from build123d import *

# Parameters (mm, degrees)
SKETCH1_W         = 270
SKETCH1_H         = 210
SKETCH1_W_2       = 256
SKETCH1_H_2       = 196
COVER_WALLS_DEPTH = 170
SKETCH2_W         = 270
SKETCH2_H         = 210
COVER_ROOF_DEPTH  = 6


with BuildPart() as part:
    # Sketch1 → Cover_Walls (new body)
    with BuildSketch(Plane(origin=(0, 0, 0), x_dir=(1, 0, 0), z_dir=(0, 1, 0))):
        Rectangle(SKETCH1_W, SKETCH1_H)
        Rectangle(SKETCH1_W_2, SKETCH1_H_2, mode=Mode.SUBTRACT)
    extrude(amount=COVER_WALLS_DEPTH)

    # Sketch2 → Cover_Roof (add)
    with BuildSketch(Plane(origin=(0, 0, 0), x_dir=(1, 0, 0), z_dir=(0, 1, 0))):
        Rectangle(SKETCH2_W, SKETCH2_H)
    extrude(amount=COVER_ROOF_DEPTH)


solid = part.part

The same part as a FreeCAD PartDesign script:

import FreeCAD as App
import Part
import Sketcher
Q = App.Units.Quantity

doc = App.newDocument("Part")
body = doc.addObject("PartDesign::Body", "Body")

# Sketch on XZ plane
sketch1 = doc.addObject("Sketcher::SketchObject", "Sketch")
body.addObject(sketch1)
sketch1.AttachmentSupport = (doc.XZ_Plane, [""])
sketch1.MapMode = "FlatFace"
sketch1.addGeometry([
    Part.LineSegment(App.Vector(-135, -105, 0), App.Vector(-135, 105, 0)),  # 0
    Part.LineSegment(App.Vector(-135, 105, 0), App.Vector(135, 105, 0)),  # 1
    Part.LineSegment(App.Vector(135, 105, 0), App.Vector(135, -105, 0)),  # 2
    Part.LineSegment(App.Vector(135, -105, 0), App.Vector(-135, -105, 0)),  # 3
    Part.LineSegment(App.Vector(128, 98, 0), App.Vector(-128, 98, 0)),  # 4
    Part.LineSegment(App.Vector(-128, 98, 0), App.Vector(-128, -98, 0)),  # 5
    Part.LineSegment(App.Vector(-128, -98, 0), App.Vector(128, -98, 0)),  # 6
    Part.LineSegment(App.Vector(128, -98, 0), App.Vector(128, 98, 0)),  # 7
], False)
sketch1.addConstraint([
    Sketcher.Constraint("Coincident", 0, 2, 1, 1),
    Sketcher.Constraint("Coincident", 1, 2, 2, 1),
    Sketcher.Constraint("Coincident", 2, 2, 3, 1),
    Sketcher.Constraint("Coincident", 3, 2, 0, 1),
    Sketcher.Constraint("Coincident", 4, 2, 5, 1),
    Sketcher.Constraint("Coincident", 5, 2, 6, 1),
    Sketcher.Constraint("Coincident", 6, 2, 7, 1),
    Sketcher.Constraint("Coincident", 7, 2, 4, 1),
    Sketcher.Constraint("Vertical", 0),
    Sketcher.Constraint("Horizontal", 1),
    Sketcher.Constraint("Vertical", 2),
    Sketcher.Constraint("Horizontal", 3),
    Sketcher.Constraint("Horizontal", 4),
    Sketcher.Constraint("Vertical", 5),
    Sketcher.Constraint("Horizontal", 6),
    Sketcher.Constraint("Vertical", 7),
    Sketcher.Constraint("Symmetric", 0, 2, 2, 2, -1, 1),
    Sketcher.Constraint("Symmetric", 4, 2, 6, 2, -1, 1),
    Sketcher.Constraint("DistanceX", 1, 1, 1, 2, Q("270 mm")),
    Sketcher.Constraint("DistanceX", 4, 2, 4, 1, Q("256 mm")),
    Sketcher.Constraint("DistanceY", 0, 1, 0, 2, Q("210 mm")),
    Sketcher.Constraint("DistanceY", 5, 2, 5, 1, Q("196 mm")),
])
pad1 = doc.addObject("PartDesign::Pad", "Pad")
body.addObject(pad1)
pad1.Profile = sketch1
pad1.Length = 170
pad1.Reversed = True

# Sketch on XZ plane
sketch2 = doc.addObject("Sketcher::SketchObject", "Sketch001")
body.addObject(sketch2)
sketch2.AttachmentSupport = (doc.XZ_Plane, [""])
sketch2.MapMode = "FlatFace"
sketch2.addGeometry([
    Part.LineSegment(App.Vector(-135, -105, 0), App.Vector(-135, 105, 0)),
    Part.LineSegment(App.Vector(-135, 105, 0), App.Vector(135, 105, 0)),
    Part.LineSegment(App.Vector(135, 105, 0), App.Vector(135, -105, 0)),
    Part.LineSegment(App.Vector(135, -105, 0), App.Vector(-135, -105, 0)),
], False)
sketch2.addConstraint([
    Sketcher.Constraint("Coincident", 0, 2, 1, 1),
    Sketcher.Constraint("Coincident", 1, 2, 2, 1),
    Sketcher.Constraint("Coincident", 2, 2, 3, 1),
    Sketcher.Constraint("Coincident", 3, 2, 0, 1),
    Sketcher.Constraint("Vertical", 0),
    Sketcher.Constraint("Horizontal", 1),
    Sketcher.Constraint("Vertical", 2),
    Sketcher.Constraint("Horizontal", 3),
    Sketcher.Constraint("Symmetric", 0, 2, 2, 2, -1, 1),
    Sketcher.Constraint("DistanceX", 1, 1, 1, 2, Q("270 mm")),
    Sketcher.Constraint("DistanceY", 0, 1, 0, 2, Q("210 mm")),
])
pad2 = doc.addObject("PartDesign::Pad", "Pad001")
body.addObject(pad2)
pad2.Profile = sketch2
pad2.Length = 6
pad2.Reversed = True

doc.recompute()
